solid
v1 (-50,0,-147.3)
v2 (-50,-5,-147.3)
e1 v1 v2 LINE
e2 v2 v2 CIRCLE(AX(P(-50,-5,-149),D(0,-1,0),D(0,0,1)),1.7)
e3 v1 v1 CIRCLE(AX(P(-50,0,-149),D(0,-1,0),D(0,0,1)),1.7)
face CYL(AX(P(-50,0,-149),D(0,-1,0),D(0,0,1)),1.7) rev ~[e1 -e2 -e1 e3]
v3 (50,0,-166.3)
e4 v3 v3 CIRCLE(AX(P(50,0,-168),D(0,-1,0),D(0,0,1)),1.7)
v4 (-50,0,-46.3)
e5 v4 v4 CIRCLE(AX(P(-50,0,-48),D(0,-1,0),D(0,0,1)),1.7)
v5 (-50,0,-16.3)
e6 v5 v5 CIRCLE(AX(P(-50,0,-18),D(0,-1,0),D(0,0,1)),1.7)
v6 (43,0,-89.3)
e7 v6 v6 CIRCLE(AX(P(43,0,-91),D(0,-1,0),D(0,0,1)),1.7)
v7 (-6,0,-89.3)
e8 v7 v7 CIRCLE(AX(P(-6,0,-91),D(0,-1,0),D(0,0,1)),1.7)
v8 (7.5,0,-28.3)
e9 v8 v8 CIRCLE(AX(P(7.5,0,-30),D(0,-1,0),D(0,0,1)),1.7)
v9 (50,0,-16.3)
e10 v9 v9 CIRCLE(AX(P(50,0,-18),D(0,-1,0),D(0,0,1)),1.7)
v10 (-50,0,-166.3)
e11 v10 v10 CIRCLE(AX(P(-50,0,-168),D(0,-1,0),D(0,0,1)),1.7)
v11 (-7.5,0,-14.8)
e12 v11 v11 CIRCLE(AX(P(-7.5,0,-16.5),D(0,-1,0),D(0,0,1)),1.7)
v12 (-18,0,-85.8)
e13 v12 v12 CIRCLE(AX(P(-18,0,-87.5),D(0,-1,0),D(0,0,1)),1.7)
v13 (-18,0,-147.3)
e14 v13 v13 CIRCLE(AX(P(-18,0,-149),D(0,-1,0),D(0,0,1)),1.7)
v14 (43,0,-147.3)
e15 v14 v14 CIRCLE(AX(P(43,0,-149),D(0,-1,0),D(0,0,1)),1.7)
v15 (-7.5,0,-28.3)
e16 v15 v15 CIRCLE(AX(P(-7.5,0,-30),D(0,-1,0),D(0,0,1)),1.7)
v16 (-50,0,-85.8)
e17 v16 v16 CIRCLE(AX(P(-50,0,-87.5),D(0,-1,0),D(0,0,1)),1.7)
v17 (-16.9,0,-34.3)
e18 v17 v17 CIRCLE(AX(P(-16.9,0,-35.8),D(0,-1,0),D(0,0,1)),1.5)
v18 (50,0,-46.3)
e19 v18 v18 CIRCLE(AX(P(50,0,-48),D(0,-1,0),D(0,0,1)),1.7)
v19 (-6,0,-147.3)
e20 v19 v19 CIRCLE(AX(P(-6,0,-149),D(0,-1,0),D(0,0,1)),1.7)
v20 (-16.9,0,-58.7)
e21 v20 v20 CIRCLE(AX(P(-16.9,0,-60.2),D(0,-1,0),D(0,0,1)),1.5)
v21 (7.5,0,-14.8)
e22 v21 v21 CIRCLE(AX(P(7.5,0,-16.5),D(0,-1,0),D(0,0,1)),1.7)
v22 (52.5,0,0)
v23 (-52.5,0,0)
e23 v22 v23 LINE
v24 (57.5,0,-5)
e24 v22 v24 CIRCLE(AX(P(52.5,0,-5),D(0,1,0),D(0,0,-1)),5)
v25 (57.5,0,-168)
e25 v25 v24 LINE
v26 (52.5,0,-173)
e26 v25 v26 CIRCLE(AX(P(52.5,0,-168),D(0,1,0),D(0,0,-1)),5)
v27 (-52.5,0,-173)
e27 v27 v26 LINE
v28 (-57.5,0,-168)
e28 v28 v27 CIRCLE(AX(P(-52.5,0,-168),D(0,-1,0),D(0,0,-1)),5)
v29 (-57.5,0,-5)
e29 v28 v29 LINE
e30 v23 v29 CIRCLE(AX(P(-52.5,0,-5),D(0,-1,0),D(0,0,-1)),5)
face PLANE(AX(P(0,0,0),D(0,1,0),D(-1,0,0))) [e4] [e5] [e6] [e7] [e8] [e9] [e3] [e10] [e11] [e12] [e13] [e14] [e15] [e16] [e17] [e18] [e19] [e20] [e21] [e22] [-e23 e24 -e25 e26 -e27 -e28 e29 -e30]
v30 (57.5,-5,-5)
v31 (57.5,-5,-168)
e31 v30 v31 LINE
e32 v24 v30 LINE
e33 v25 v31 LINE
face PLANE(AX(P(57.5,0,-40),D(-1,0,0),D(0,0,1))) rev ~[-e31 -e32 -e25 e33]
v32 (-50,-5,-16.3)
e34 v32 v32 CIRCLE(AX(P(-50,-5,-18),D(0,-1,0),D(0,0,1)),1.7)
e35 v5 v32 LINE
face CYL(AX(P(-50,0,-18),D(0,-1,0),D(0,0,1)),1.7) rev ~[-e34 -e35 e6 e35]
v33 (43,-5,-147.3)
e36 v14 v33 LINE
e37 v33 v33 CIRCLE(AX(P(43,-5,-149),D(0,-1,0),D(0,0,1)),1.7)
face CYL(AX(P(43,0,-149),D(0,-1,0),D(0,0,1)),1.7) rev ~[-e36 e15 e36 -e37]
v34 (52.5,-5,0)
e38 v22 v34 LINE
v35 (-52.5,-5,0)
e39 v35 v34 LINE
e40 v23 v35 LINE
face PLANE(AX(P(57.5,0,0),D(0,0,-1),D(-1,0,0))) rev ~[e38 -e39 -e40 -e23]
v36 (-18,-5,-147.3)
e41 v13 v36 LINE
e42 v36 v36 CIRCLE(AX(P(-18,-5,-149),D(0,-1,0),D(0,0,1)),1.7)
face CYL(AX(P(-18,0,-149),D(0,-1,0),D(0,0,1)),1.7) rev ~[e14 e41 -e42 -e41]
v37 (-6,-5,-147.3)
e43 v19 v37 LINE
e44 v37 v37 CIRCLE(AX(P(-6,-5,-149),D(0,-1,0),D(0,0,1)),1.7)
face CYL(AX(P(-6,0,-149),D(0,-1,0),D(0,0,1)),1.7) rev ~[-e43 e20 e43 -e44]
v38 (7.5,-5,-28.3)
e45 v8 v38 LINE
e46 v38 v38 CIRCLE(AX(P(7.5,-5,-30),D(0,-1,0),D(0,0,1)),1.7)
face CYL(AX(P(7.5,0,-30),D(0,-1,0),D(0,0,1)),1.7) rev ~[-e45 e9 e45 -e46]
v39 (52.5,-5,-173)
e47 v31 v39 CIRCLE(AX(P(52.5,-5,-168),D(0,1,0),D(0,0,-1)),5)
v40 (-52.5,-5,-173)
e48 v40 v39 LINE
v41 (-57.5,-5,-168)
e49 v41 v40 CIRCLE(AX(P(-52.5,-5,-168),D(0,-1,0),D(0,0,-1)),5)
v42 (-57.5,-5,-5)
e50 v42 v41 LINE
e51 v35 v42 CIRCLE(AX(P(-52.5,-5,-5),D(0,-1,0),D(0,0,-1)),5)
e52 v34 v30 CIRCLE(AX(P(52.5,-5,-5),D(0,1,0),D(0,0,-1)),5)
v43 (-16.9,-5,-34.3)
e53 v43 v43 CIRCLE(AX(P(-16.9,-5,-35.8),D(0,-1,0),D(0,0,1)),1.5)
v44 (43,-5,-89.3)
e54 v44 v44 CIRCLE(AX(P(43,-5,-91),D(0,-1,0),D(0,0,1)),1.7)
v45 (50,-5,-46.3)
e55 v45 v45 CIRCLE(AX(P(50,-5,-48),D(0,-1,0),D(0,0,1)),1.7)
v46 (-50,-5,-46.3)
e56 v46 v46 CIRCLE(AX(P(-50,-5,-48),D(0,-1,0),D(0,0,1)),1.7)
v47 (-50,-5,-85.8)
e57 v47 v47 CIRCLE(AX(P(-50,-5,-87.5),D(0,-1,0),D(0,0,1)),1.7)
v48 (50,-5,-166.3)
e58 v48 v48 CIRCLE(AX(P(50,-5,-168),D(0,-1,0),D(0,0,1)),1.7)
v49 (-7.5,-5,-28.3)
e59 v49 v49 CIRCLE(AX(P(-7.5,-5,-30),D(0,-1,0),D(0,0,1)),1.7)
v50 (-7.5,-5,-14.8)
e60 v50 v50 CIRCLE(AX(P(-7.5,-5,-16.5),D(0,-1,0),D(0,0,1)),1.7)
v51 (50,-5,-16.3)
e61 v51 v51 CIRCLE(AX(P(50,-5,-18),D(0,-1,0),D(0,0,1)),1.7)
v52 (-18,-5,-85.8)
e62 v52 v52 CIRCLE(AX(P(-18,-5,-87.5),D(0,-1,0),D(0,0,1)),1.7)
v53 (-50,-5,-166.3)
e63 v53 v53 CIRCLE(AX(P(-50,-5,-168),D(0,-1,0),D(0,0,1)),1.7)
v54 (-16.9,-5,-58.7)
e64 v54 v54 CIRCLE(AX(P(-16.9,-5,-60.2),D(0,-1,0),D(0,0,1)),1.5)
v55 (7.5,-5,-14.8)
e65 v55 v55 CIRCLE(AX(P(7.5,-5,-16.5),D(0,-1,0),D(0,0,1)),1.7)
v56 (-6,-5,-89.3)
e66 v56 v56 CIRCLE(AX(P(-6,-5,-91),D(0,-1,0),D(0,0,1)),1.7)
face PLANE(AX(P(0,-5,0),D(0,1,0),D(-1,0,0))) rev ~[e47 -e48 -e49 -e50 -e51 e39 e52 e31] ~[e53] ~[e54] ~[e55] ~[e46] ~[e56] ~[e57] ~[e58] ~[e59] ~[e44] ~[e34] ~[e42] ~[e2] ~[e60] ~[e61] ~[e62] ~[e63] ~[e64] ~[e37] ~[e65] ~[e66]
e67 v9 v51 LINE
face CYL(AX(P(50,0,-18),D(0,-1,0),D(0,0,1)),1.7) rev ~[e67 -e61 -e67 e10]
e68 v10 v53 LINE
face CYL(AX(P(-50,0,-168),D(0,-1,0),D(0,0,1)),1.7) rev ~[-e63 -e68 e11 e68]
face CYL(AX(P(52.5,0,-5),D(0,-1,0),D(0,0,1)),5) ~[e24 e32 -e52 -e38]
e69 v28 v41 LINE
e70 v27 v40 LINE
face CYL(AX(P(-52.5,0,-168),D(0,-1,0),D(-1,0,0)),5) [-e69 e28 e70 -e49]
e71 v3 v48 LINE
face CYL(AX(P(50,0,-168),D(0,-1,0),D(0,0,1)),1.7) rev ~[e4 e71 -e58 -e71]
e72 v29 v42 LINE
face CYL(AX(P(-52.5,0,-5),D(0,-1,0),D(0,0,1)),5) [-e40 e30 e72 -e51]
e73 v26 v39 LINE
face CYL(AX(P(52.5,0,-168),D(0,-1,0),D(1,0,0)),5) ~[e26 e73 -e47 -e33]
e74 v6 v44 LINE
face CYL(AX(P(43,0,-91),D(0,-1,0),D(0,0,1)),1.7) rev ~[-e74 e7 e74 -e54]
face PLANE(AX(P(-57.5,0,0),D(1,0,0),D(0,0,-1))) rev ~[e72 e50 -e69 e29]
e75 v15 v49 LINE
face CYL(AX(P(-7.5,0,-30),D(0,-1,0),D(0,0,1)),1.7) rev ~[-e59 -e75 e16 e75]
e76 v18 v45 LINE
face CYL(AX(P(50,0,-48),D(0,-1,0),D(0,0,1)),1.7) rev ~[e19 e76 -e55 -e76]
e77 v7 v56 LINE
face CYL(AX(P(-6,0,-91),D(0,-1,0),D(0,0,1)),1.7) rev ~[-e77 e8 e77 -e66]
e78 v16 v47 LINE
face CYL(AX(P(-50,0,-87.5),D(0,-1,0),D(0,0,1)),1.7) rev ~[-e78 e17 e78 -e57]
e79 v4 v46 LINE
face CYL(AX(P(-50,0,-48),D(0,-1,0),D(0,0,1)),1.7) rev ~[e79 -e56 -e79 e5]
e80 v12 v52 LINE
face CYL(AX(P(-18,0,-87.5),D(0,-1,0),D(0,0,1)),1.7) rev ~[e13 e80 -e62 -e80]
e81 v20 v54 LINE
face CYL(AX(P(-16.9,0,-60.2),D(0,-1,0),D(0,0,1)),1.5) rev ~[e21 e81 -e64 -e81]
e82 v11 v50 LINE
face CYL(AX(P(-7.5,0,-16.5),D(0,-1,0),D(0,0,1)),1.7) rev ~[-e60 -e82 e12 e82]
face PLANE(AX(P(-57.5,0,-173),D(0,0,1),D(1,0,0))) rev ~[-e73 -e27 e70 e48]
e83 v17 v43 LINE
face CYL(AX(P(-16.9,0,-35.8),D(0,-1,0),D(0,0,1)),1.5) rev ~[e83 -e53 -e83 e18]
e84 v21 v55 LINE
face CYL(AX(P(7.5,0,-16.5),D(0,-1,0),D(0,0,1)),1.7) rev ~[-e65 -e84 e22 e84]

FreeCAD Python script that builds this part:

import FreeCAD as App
import Part
import Sketcher

V = App.Vector


def edges_at(feature, points):
    """Names of the edges that pass closest to the given points."""
    edges = feature.Shape.Edges
    near = lambda p: min(range(len(edges)), key=lambda i: edges[i].distToShape(Part.Vertex(*p))[0])
    return sorted({f"Edge{near(p) + 1}" for p in points})


def add_polygon(sketch, points):
    """Adds a closed chain of lines whose ends are joined by coincident constraints."""
    first, n = sketch.GeometryCount, len(points)
    for a, b in zip(points, points[1:] + points[:1]):
        sketch.addGeometry(Part.LineSegment(App.Vector(*a, 0), App.Vector(*b, 0)), False)
    for i in range(n):
        sketch.addConstraint(Sketcher.Constraint("Coincident", first + i, 2, first + (i + 1) % n, 1))

doc = App.newDocument("Part")
body = doc.addObject("PartDesign::Body", "Body")

# Sketch on XZ plane
sketch1 = body.newObject("Sketcher::SketchObject", "Sketch")
sketch1.AttachmentSupport = (doc.getObject("XZ_Plane"), [""])
sketch1.MapMode = "FlatFace"
add_polygon(sketch1, [(-57.5, 0), (57.5, 0), (57.5, -173), (-57.5, -173)])  # lines 0-3
sketch1.addConstraint([
    Sketcher.Constraint("Horizontal", 0),
    Sketcher.Constraint("Vertical", 1),
    Sketcher.Constraint("Horizontal", 2),
    Sketcher.Constraint("Vertical", 3),
    Sketcher.Constraint("Symmetric", 0, 2, 3, 2, -1, 1),
    Sketcher.Constraint("DistanceX", 0, 1, 0, 2, 115.0),
    Sketcher.Constraint("DistanceY", 1, 2, 1, 1, 173.0),
])
pad1 = body.newObject("PartDesign::Pad", "Pad")
pad1.Profile = sketch1
pad1.Length = 5

# Sketch on XZ plane
sketch2 = body.newObject("Sketcher::SketchObject", "Sketch001")
sketch2.AttachmentSupport = (doc.getObject("XZ_Plane"), [""])
sketch2.MapMode = "FlatFace"
sketch2.addGeometry([
    Part.Circle(V(50, -18, 0), V(0, 0, 1), 1.7),  # 0
    Part.Circle(V(-50, -18, 0), V(0, 0, 1), 1.7),  # 1
    Part.Circle(V(50, -168, 0), V(0, 0, 1), 1.7),  # 2
    Part.Circle(V(-50, -168, 0), V(0, 0, 1), 1.7),  # 3
    Part.Circle(V(-50, -48, 0), V(0, 0, 1), 1.7),  # 4
    Part.Circle(V(50, -48, 0), V(0, 0, 1), 1.7),  # 5
], False)
sketch2.addConstraint([
    Sketcher.Constraint("Equal", 0, 1),
    Sketcher.Constraint("Equal", 1, 2),
    Sketcher.Constraint("Equal", 2, 3),
    Sketcher.Constraint("Equal", 3, 4),
    Sketcher.Constraint("Equal", 4, 5),
    Sketcher.Constraint("Symmetric", 0, 3, 1, 3, -2),
    Sketcher.Constraint("Symmetric", 2, 3, 3, 3, -2),
    Sketcher.Constraint("Symmetric", 4, 3, 5, 3, -2),
    Sketcher.Constraint("Vertical", 0, 3, 2, 3),
    Sketcher.Constraint("Vertical", 3, 3, 4, 3),
    Sketcher.Constraint("Diameter", 0, 3.4),
    Sketcher.Constraint("DistanceX", -1, 1, 0, 3, 50.0),
    Sketcher.Constraint("DistanceY", 0, 3, -1, 1, 18.0),
    Sketcher.Constraint("DistanceY", 2, 3, -1, 1, 168.0),
    Sketcher.Constraint("DistanceY", 4, 3, -1, 1, 48.0),
])
doc.recompute()
hole = body.newObject("PartDesign::Hole", "Hole")
hole.Profile = sketch2
hole.ThreadType = "None"
hole.Diameter = 3.4
hole.DepthType = "Dimension"
hole.Depth = 6
hole.DrillPoint = "Flat"
hole.Reversed = True
doc.recompute()

fillet = body.newObject("PartDesign::Fillet", "Fillet")
fillet.Base = (hole, edges_at(hole, [
    (-57.5, -2.5, 0),
    (57.5, -2.5, -173),
    (-57.5, -2.5, -173),
    (57.5, -2.5, 0),
]))
fillet.Radius = 5

# Sketch on XZ plane
sketch3 = body.newObject("Sketcher::SketchObject", "Sketch002")
sketch3.AttachmentSupport = (doc.getObject("XZ_Plane"), [""])
sketch3.MapMode = "FlatFace"
sketch3.addGeometry([
    Part.Circle(V(-6, -149, 0), V(0, 0, 1), 1.7),
    Part.Circle(V(43, -149, 0), V(0, 0, 1), 1.7),
    Part.Circle(V(43, -91, 0), V(0, 0, 1), 1.7),
    Part.Circle(V(-6, -91, 0), V(0, 0, 1), 1.7),
], False)
sketch3.addConstraint([
    Sketcher.Constraint("Equal", 0, 1),
    Sketcher.Constraint("Equal", 1, 2),
    Sketcher.Constraint("Equal", 2, 3),
    Sketcher.Constraint("Horizontal", 0, 3, 1, 3),
    Sketcher.Constraint("Horizontal", 2, 3, 3, 3),
    Sketcher.Constraint("Vertical", 1, 3, 2, 3),
    Sketcher.Constraint("Vertical", 0, 3, 3, 3),
    Sketcher.Constraint("Diameter", 0, 3.4),
    Sketcher.Constraint("DistanceX", 0, 3, -1, 1, 6.0),
    Sketcher.Constraint("DistanceY", 0, 3, -1, 1, 149.0),
    Sketcher.Constraint("DistanceX", -1, 1, 1, 3, 43.0),
    Sketcher.Constraint("DistanceY", 2, 3, -1, 1, 91.0),
])
doc.recompute()
hole2 = body.newObject("PartDesign::Hole", "Hole001")
hole2.Profile = sketch3
hole2.ThreadType = "None"
hole2.Diameter = 3.4
hole2.DepthType = "Dimension"
hole2.Depth = 6
hole2.DrillPoint = "Flat"
hole2.Reversed = True

# Sketch on XZ plane
sketch4 = body.newObject("Sketcher::SketchObject", "Sketch003")
sketch4.AttachmentSupport = (doc.getObject("XZ_Plane"), [""])
sketch4.MapMode = "FlatFace"
sketch4.addGeometry([
    Part.Circle(V(-18, -149, 0), V(0, 0, 1), 1.7),
    Part.Circle(V(-18, -87.5, 0), V(0, 0, 1), 1.7),
    Part.Circle(V(-50, -87.5, 0), V(0, 0, 1), 1.7),
    Part.Circle(V(-50, -149, 0), V(0, 0, 1), 1.7),
], False)
sketch4.addConstraint([
    Sketcher.Constraint("Equal", 0, 1),
    Sketcher.Constraint("Equal", 1, 2),
    Sketcher.Constraint("Equal", 2, 3),
    Sketcher.Constraint("Horizontal", 1, 3, 2, 3),
    Sketcher.Constraint("Horizontal", 0, 3, 3, 3),
    Sketcher.Constraint("Vertical", 0, 3, 1, 3),
    Sketcher.Constraint("Vertical", 2, 3, 3, 3),
    Sketcher.Constraint("Diameter", 0, 3.4),
    Sketcher.Constraint("DistanceX", 0, 3, -1, 1, 18.0),
    Sketcher.Constraint("DistanceY", 0, 3, -1, 1, 149.0),
    Sketcher.Constraint("DistanceX", 2, 3, -1, 1, 50.0),
    Sketcher.Constraint("DistanceY", 1, 3, -1, 1, 87.5),
])
doc.recompute()
hole3 = body.newObject("PartDesign::Hole", "Hole002")
hole3.Profile = sketch4
hole3.ThreadType = "None"
hole3.Diameter = 3.4
hole3.DepthType = "Dimension"
hole3.Depth = 6
hole3.DrillPoint = "Flat"
hole3.Reversed = True

# Sketch on XZ plane
sketch5 = body.newObject("Sketcher::SketchObject", "Sketch004")
sketch5.AttachmentSupport = (doc.getObject("XZ_Plane"), [""])
sketch5.MapMode = "FlatFace"
sketch5.addGeometry([
    Part.Circle(V(-7.5, -30, 0), V(0, 0, 1), 1.7),
    Part.Circle(V(-7.5, -16.5, 0), V(0, 0, 1), 1.7),
    Part.Circle(V(7.5, -16.5, 0), V(0, 0, 1), 1.7),
    Part.Circle(V(7.5, -30, 0), V(0, 0, 1), 1.7),
], False)
sketch5.addConstraint([
    Sketcher.Constraint("Equal", 0, 1),
    Sketcher.Constraint("Equal", 1, 2),
    Sketcher.Constraint("Equal", 2, 3),
    Sketcher.Constraint("Symmetric", 1, 3, 2, 3, -2),
    Sketcher.Constraint("Symmetric", 0, 3, 3, 3, -2),
    Sketcher.Constraint("Vertical", 0, 3, 1, 3),
    Sketcher.Constraint("Diameter", 0, 3.4),
    Sketcher.Constraint("DistanceY", 0, 3, -1, 1, 30.0),
    Sketcher.Constraint("DistanceX", 1, 3, 2, 3, 15.0),
    Sketcher.Constraint("DistanceY", 1, 3, -1, 1, 16.5),
])
doc.recompute()
hole4 = body.newObject("PartDesign::Hole", "Hole003")
hole4.Profile = sketch5
hole4.ThreadType = "None"
hole4.Diameter = 3.4
hole4.DepthType = "Dimension"
hole4.Depth = 6
hole4.DrillPoint = "Flat"
hole4.Reversed = True

# Sketch on XZ plane
sketch6 = body.newObject("Sketcher::SketchObject", "Sketch005")
sketch6.AttachmentSupport = (doc.getObject("XZ_Plane"), [""])
sketch6.MapMode = "FlatFace"
sketch6.addGeometry([
    Part.Circle(V(-16.9, -60.2, 0), V(0, 0, 1), 1.5),
    Part.Circle(V(-16.9, -35.8, 0), V(0, 0, 1), 1.5),
], False)
sketch6.addConstraint([
    Sketcher.Constraint("Equal", 0, 1),
    Sketcher.Constraint("Vertical", 0, 3, 1, 3),
    Sketcher.Constraint("Diameter", 0, 3.0),
    Sketcher.Constraint("DistanceX", 0, 3, -1, 1, 16.9),
    Sketcher.Constraint("DistanceY", 0, 3, -1, 1, 60.2),
    Sketcher.Constraint("DistanceY", 1, 3, -1, 1, 35.8),
])
doc.recompute()
hole5 = body.newObject("PartDesign::Hole", "Hole004")
hole5.Profile = sketch6
hole5.ThreadType = "None"
hole5.Diameter = 3
hole5.DepthType = "ThroughAll"
hole5.Reversed = True

doc.recompute()
